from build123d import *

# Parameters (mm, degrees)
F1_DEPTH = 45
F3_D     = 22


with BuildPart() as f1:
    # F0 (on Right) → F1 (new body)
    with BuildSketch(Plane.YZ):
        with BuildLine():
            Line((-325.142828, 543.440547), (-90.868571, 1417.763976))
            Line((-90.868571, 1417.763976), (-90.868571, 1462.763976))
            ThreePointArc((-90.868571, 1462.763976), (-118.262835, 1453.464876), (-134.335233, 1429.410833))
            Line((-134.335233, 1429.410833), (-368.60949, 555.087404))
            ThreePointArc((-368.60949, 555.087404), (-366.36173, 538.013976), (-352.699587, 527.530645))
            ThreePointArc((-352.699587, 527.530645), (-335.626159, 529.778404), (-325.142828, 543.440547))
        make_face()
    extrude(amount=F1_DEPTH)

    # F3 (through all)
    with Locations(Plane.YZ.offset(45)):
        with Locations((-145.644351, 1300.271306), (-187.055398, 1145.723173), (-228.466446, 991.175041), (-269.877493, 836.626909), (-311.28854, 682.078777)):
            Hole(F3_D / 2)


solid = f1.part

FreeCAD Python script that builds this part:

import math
import FreeCAD as App
import Part
import Sketcher
from FreeCAD import Vector
Q = App.Units.Quantity

doc = App.newDocument("Part")
body = doc.addObject("PartDesign::Body", "Body")

sketch1 = body.newObject("Sketcher::SketchObject", "Sketch")
sketch1.AttachmentSupport = (doc.getObject("YZ_Plane"), [""])
sketch1.MapMode = "FlatFace"
sketch1.addGeometry([
    Part.LineSegment(Vector(-325.142828, 543.440547, 0), Vector(-90.868571, 1417.763976, 0)),
    Part.LineSegment(Vector(-90.868571, 1417.763976, 0), Vector(-90.868571, 1462.763976, 0)),
    Part.ArcOfCircle(Part.Circle(Vector(-90.86857, 1417.763975, 0), Vector(0, 0, 1), 45.000001), math.radians(90.000001), math.radians(164.999999)),
    Part.LineSegment(Vector(-134.335233, 1429.410833, 0), Vector(-368.60949, 555.087404, 0)),
    Part.ArcOfCircle(Part.Circle(Vector(-346.876158, 549.263976, 0), Vector(0, 0, 1), 22.5), math.radians(165.000003), math.radians(254.999999)),
    Part.ArcOfCircle(Part.Circle(Vector(-346.876158, 549.263975, 0), Vector(0, 0, 1), 22.499999), math.radians(-105.000002), math.radians(-14.999999)),
], False)
sketch1.addConstraint([
    Sketcher.Constraint("Coincident", 0, 2, 1, 1),
    Sketcher.Constraint("Coincident", 1, 2, 2, 1),
    Sketcher.Constraint("Tangent", 2, 2, 3, 1),
    Sketcher.Constraint("Tangent", 3, 2, 4, 1),
    Sketcher.Constraint("Tangent", 4, 2, 5, 1),
    Sketcher.Constraint("Tangent", 5, 2, 0, 1),
    Sketcher.Constraint("Vertical", 1),
    Sketcher.Constraint("Coincident", 0, 2, 2, 3),
    Sketcher.Constraint("Equal", 4, 5),
    Sketcher.Constraint("Parallel", 0, 3),
    Sketcher.Constraint("Radius", 2, 45.000001),
    Sketcher.Constraint("Angle", 0, Q("75 deg")),
    Sketcher.Constraint("DistanceY", 4, 3, 2, 3, 868.499998),
    Sketcher.Constraint("DistanceX", 2, 3, -1, 1, 90.86857),
    Sketcher.Constraint("DistanceX", 4, 2, 5, 3, 5.823429),
    Sketcher.Constraint("DistanceY", -1, 1, 2, 3, 1417.763975),
])
pad1 = body.newObject("PartDesign::Pad", "Pad")
pad1.Profile = sketch1
pad1.Length = 45

sketch2 = body.newObject("Sketcher::SketchObject", "Sketch001")
sketch2.AttachmentSupport = (doc.getObject("YZ_Plane"), [""])
sketch2.MapMode = "FlatFace"
sketch2.AttachmentOffset = App.Placement(Vector(0, 0, 45), App.Rotation())
sketch2.addGeometry([
    Part.Circle(Vector(-145.644351, 1300.271306, 0), Vector(0, 0, 1), 11),
    Part.Circle(Vector(-187.055398, 1145.723173, 0), Vector(0, 0, 1), 11),
    Part.Circle(Vector(-228.466446, 991.175041, 0), Vector(0, 0, 1), 11),
    Part.Circle(Vector(-269.877493, 836.626909, 0), Vector(0, 0, 1), 11),
    Part.Circle(Vector(-311.28854, 682.078777, 0), Vector(0, 0, 1), 11),
], False)
sketch2.addConstraint([
    Sketcher.Constraint("Equal", 0, 1),
    Sketcher.Constraint("Equal", 1, 2),
    Sketcher.Constraint("Equal", 2, 3),
    Sketcher.Constraint("Equal", 3, 4),
    Sketcher.Constraint("Diameter", 0, 22.0),
    Sketcher.Constraint("DistanceX", 1, 3, -1, 1, 187.055398),
    Sketcher.Constraint("DistanceX", 0, 3, -1, 1, 145.644351),
    Sketcher.Constraint("DistanceY", -1, 1, 2, 3, 991.175041),
    Sketcher.Constraint("DistanceY", -1, 1, 3, 3, 836.626909),
    Sketcher.Constraint("DistanceX", 4, 3, -1, 1, 311.28854),
    Sketcher.Constraint("DistanceY", 4, 3, 0, 3, 618.192529),
    Sketcher.Constraint("DistanceY", -1, 1, 0, 3, 1300.271306),
    Sketcher.Constraint("DistanceY", -1, 1, 1, 3, 1145.723173),
    Sketcher.Constraint("DistanceX", 2, 3, -1, 1, 228.466446),
    Sketcher.Constraint("DistanceX", 3, 3, -1, 1, 269.877493),
])
doc.recompute()
hole = body.newObject("PartDesign::Hole", "Hole")
hole.Profile = sketch2
hole.ThreadType = "None"
hole.Diameter = 22
hole.DepthType = "ThroughAll"

doc.recompute()
